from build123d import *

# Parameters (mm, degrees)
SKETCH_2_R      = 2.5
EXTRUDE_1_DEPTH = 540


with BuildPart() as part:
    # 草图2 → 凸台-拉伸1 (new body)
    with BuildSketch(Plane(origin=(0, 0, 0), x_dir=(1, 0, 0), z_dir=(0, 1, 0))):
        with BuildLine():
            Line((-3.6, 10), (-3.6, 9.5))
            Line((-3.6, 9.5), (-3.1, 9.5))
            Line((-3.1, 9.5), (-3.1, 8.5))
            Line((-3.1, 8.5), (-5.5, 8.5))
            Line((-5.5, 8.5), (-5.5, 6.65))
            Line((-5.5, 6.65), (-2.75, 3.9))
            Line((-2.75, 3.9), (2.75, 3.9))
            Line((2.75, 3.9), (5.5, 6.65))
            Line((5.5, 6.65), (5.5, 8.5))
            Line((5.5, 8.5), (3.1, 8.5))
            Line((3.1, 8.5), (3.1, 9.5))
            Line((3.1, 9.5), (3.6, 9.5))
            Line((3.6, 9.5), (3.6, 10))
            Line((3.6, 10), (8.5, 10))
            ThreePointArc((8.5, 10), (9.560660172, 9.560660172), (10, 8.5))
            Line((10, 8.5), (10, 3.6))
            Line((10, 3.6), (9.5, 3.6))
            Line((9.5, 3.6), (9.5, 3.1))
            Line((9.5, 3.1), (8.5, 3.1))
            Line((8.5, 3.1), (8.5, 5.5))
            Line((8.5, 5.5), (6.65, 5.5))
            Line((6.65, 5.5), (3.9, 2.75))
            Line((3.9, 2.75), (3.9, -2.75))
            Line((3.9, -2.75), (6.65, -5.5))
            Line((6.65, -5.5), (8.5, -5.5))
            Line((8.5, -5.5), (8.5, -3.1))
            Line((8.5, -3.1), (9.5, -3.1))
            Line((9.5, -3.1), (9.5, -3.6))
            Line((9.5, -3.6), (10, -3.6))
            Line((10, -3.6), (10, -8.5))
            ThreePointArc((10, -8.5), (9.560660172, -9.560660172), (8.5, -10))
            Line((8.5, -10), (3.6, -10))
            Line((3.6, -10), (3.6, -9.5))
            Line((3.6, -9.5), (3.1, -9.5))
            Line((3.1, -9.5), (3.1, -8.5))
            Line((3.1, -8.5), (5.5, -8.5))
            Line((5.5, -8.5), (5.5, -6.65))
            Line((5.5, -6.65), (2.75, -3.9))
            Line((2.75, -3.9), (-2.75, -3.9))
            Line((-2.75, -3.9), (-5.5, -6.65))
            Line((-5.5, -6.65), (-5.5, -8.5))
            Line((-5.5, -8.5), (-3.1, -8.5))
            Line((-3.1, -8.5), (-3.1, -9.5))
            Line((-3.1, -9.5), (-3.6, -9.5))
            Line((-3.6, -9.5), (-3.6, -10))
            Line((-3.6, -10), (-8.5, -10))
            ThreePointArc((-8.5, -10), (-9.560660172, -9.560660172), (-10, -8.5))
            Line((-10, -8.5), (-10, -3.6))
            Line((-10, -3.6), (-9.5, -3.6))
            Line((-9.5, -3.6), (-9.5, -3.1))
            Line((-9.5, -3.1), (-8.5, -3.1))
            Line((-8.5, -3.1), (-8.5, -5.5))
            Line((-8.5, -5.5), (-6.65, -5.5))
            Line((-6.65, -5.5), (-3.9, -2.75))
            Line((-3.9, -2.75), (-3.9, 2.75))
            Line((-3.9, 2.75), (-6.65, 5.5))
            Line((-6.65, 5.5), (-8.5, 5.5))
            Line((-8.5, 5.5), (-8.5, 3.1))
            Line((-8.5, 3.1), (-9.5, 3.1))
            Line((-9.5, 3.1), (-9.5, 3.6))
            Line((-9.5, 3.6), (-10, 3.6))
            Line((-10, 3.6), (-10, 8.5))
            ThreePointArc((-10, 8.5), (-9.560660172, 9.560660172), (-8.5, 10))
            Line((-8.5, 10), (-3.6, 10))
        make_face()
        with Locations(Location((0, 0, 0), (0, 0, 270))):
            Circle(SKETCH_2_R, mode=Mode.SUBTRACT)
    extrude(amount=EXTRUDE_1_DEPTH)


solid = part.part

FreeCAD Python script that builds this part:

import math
import FreeCAD as App
import Part
import Sketcher

doc = App.newDocument("Part")
body = doc.addObject("PartDesign::Body", "Body")

sketch1 = doc.addObject("Sketcher::SketchObject", "Sketch")
body.addObject(sketch1)
sketch1.AttachmentSupport = (doc.XZ_Plane, [""])
sketch1.MapMode = "FlatFace"
sketch1.addGeometry(Part.LineSegment(App.Vector(-3.6, -9.5, 0), App.Vector(-3.6, -10, 0)), False)
sketch1.addGeometry(Part.LineSegment(App.Vector(-3.6, -10, 0), App.Vector(-8.5, -10, 0)), False)
sketch1.addGeometry(Part.ArcOfCircle(Part.Circle(App.Vector(-8.5, -8.5, 0), App.Vector(0, 0, 1), 1.5), math.radians(180), math.radians(270)), False)
sketch1.addGeometry(Part.LineSegment(App.Vector(-10, -8.5, 0), App.Vector(-10, -3.6, 0)), False)
sketch1.addGeometry(Part.LineSegment(App.Vector(-10, -3.6, 0), App.Vector(-9.5, -3.6, 0)), False)
sketch1.addGeometry(Part.LineSegment(App.Vector(-9.5, -3.6, 0), App.Vector(-9.5, -3.1, 0)), False)
sketch1.addGeometry(Part.LineSegment(App.Vector(-9.5, -3.1, 0), App.Vector(-8.5, -3.1, 0)), False)
sketch1.addGeometry(Part.LineSegment(App.Vector(-8.5, -3.1, 0), App.Vector(-8.5, -5.5, 0)), False)
sketch1.addGeometry(Part.LineSegment(App.Vector(-8.5, -5.5, 0), App.Vector(-6.7, -5.5, 0)), False)
sketch1.addGeometry(Part.LineSegment(App.Vector(-6.7, -5.5, 0), App.Vector(-3.9, -2.8, 0)), False)
sketch1.addGeometry(Part.LineSegment(App.Vector(-3.9, -2.8, 0), App.Vector(-3.9, 2.8, 0)), False)
sketch1.addGeometry(Part.LineSegment(App.Vector(-3.9, 2.8, 0), App.Vector(-6.7, 5.5, 0)), False)
sketch1.addGeometry(Part.LineSegment(App.Vector(-6.7, 5.5, 0), App.Vector(-8.5, 5.5, 0)), False)
sketch1.addGeometry(Part.LineSegment(App.Vector(-8.5, 5.5, 0), App.Vector(-8.5, 3.1, 0)), False)
sketch1.addGeometry(Part.LineSegment(App.Vector(-8.5, 3.1, 0), App.Vector(-9.5, 3.1, 0)), False)
sketch1.addGeometry(Part.LineSegment(App.Vector(-9.5, 3.1, 0), App.Vector(-9.5, 3.6, 0)), False)
sketch1.addGeometry(Part.LineSegment(App.Vector(-9.5, 3.6, 0), App.Vector(-10, 3.6, 0)), False)
sketch1.addGeometry(Part.LineSegment(App.Vector(-10, 3.6, 0), App.Vector(-10, 8.5, 0)), False)
sketch1.addGeometry(Part.ArcOfCircle(Part.Circle(App.Vector(-8.5, 8.5, 0), App.Vector(0, 0, 1), 1.5), math.radians(90), math.radians(180)), False)
sketch1.addGeometry(Part.LineSegment(App.Vector(-8.5, 10, 0), App.Vector(-3.6, 10, 0)), False)
sketch1.addGeometry(Part.LineSegment(App.Vector(-3.6, 10, 0), App.Vector(-3.6, 9.5, 0)), False)
sketch1.addGeometry(Part.LineSegment(App.Vector(-3.6, 9.5, 0), App.Vector(-3.1, 9.5, 0)), False)
sketch1.addGeometry(Part.LineSegment(App.Vector(-3.1, 9.5, 0), App.Vector(-3.1, 8.5, 0)), False)
sketch1.addGeometry(Part.LineSegment(App.Vector(-3.1, 8.5, 0), App.Vector(-5.5, 8.5, 0)), False)
sketch1.addGeometry(Part.LineSegment(App.Vector(-5.5, 8.5, 0), App.Vector(-5.5, 6.7, 0)), False)
sketch1.addGeometry(Part.LineSegment(App.Vector(-5.5, 6.7, 0), App.Vector(-2.8, 3.9, 0)), False)
sketch1.addGeometry(Part.LineSegment(App.Vector(-2.8, 3.9, 0), App.Vector(2.8, 3.9, 0)), False)
sketch1.addGeometry(Part.LineSegment(App.Vector(2.8, 3.9, 0), App.Vector(5.5, 6.7, 0)), False)
sketch1.addGeometry(Part.LineSegment(App.Vector(5.5, 6.7, 0), App.Vector(5.5, 8.5, 0)), False)
sketch1.addGeometry(Part.LineSegment(App.Vector(5.5, 8.5, 0), App.Vector(3.1, 8.5, 0)), False)
sketch1.addGeometry(Part.LineSegment(App.Vector(3.1, 8.5, 0), App.Vector(3.1, 9.5, 0)), False)
sketch1.addGeometry(Part.LineSegment(App.Vector(3.1, 9.5, 0), App.Vector(3.6, 9.5, 0)), False)
sketch1.addGeometry(Part.LineSegment(App.Vector(3.6, 9.5, 0), App.Vector(3.6, 10, 0)), False)
sketch1.addGeometry(Part.LineSegment(App.Vector(3.6, 10, 0), App.Vector(8.5, 10, 0)), False)
sketch1.addGeometry(Part.ArcOfCircle(Part.Circle(App.Vector(8.5, 8.5, 0), App.Vector(0, 0, 1), 1.5), math.radians(0), math.radians(90)), False)
sketch1.addGeometry(Part.LineSegment(App.Vector(10, 8.5, 0), App.Vector(10, 3.6, 0)), False)
sketch1.addGeometry(Part.LineSegment(App.Vector(10, 3.6, 0), App.Vector(9.5, 3.6, 0)), False)
sketch1.addGeometry(Part.LineSegment(App.Vector(9.5, 3.6, 0), App.Vector(9.5, 3.1, 0)), False)
sketch1.addGeometry(Part.LineSegment(App.Vector(9.5, 3.1, 0), App.Vector(8.5, 3.1, 0)), False)
sketch1.addGeometry(Part.LineSegment(App.Vector(8.5, 3.1, 0), App.Vector(8.5, 5.5, 0)), False)
sketch1.addGeometry(Part.LineSegment(App.Vector(8.5, 5.5, 0), App.Vector(6.7, 5.5, 0)), False)
sketch1.addGeometry(Part.LineSegment(App.Vector(6.7, 5.5, 0), App.Vector(3.9, 2.8, 0)), False)
sketch1.addGeometry(Part.LineSegment(App.Vector(3.9, 2.8, 0), App.Vector(3.9, -2.8, 0)), False)
sketch1.addGeometry(Part.LineSegment(App.Vector(3.9, -2.8, 0), App.Vector(6.7, -5.5, 0)), False)
sketch1.addGeometry(Part.LineSegment(App.Vector(6.7, -5.5, 0), App.Vector(8.5, -5.5, 0)), False)
sketch1.addGeometry(Part.LineSegment(App.Vector(8.5, -5.5, 0), App.Vector(8.5, -3.1, 0)), False)
sketch1.addGeometry(Part.LineSegment(App.Vector(8.5, -3.1, 0), App.Vector(9.5, -3.1, 0)), False)
sketch1.addGeometry(Part.LineSegment(App.Vector(9.5, -3.1, 0), App.Vector(9.5, -3.6, 0)), False)
sketch1.addGeometry(Part.LineSegment(App.Vector(9.5, -3.6, 0), App.Vector(10, -3.6, 0)), False)
sketch1.addGeometry(Part.LineSegment(App.Vector(10, -3.6, 0), App.Vector(10, -8.5, 0)), False)
sketch1.addGeometry(Part.ArcOfCircle(Part.Circle(App.Vector(8.5, -8.5, 0), App.Vector(0, 0, 1), 1.5), math.radians(-90), math.radians(0)), False)
sketch1.addGeometry(Part.LineSegment(App.Vector(8.5, -10, 0), App.Vector(3.6, -10, 0)), False)
sketch1.addGeometry(Part.LineSegment(App.Vector(3.6, -10, 0), App.Vector(3.6, -9.5, 0)), False)
sketch1.addGeometry(Part.LineSegment(App.Vector(3.6, -9.5, 0), App.Vector(3.1, -9.5, 0)), False)
sketch1.addGeometry(Part.LineSegment(App.Vector(3.1, -9.5, 0), App.Vector(3.1, -8.5, 0)), False)
sketch1.addGeometry(Part.LineSegment(App.Vector(3.1, -8.5, 0), App.Vector(5.5, -8.5, 0)), False)
sketch1.addGeometry(Part.LineSegment(App.Vector(5.5, -8.5, 0), App.Vector(5.5, -6.7, 0)), False)
sketch1.addGeometry(Part.LineSegment(App.Vector(5.5, -6.7, 0), App.Vector(2.8, -3.9, 0)), False)
sketch1.addGeometry(Part.LineSegment(App.Vector(2.8, -3.9, 0), App.Vector(-2.8, -3.9, 0)), False)
sketch1.addGeometry(Part.LineSegment(App.Vector(-2.8, -3.9, 0), App.Vector(-5.5, -6.7, 0)), False)
sketch1.addGeometry(Part.LineSegment(App.Vector(-5.5, -6.7, 0), App.Vector(-5.5, -8.5, 0)), False)
sketch1.addGeometry(Part.LineSegment(App.Vector(-5.5, -8.5, 0), App.Vector(-3.1, -8.5, 0)), False)
sketch1.addGeometry(Part.LineSegment(App.Vector(-3.1, -8.5, 0), App.Vector(-3.1, -9.5, 0)), False)
sketch1.addGeometry(Part.LineSegment(App.Vector(-3.1, -9.5, 0), App.Vector(-3.6, -9.5, 0)), False)
sketch1.addGeometry(Part.Circle(App.Vector(0, 0, 0), App.Vector(0, 0, 1), 2.5), False)
sketch1.addConstraint(Sketcher.Constraint("Coincident", 0, 2, 1, 1))
sketch1.addConstraint(Sketcher.Constraint("Tangent", 1, 2, 2, 2))
sketch1.addConstraint(Sketcher.Constraint("Tangent", 2, 1, 3, 1))
sketch1.addConstraint(Sketcher.Constraint("Coincident", 3, 2, 4, 1))
sketch1.addConstraint(Sketcher.Constraint("Coincident", 4, 2, 5, 1))
sketch1.addConstraint(Sketcher.Constraint("Coincident", 5, 2, 6, 1))
sketch1.addConstraint(Sketcher.Constraint("Coincident", 6, 2, 7, 1))
sketch1.addConstraint(Sketcher.Constraint("Coincident", 7, 2, 8, 1))
sketch1.addConstraint(Sketcher.Constraint("Coincident", 8, 2, 9, 1))
sketch1.addConstraint(Sketcher.Constraint("Coincident", 9, 2, 10, 1))
sketch1.addConstraint(Sketcher.Constraint("Coincident", 10, 2, 11, 1))
sketch1.addConstraint(Sketcher.Constraint("Coincident", 11, 2, 12, 1))
sketch1.addConstraint(Sketcher.Constraint("Coincident", 12, 2, 13, 1))
sketch1.addConstraint(Sketcher.Constraint("Coincident", 13, 2, 14, 1))
sketch1.addConstraint(Sketcher.Constraint("Coincident", 14, 2, 15, 1))
sketch1.addConstraint(Sketcher.Constraint("Coincident", 15, 2, 16, 1))
sketch1.addConstraint(Sketcher.Constraint("Coincident", 16, 2, 17, 1))
sketch1.addConstraint(Sketcher.Constraint("Tangent", 17, 2, 18, 2))
sketch1.addConstraint(Sketcher.Constraint("Tangent", 18, 1, 19, 1))
sketch1.addConstraint(Sketcher.Constraint("Coincident", 19, 2, 20, 1))
sketch1.addConstraint(Sketcher.Constraint("Coincident", 20, 2, 21, 1))
sketch1.addConstraint(Sketcher.Constraint("Coincident", 21, 2, 22, 1))
sketch1.addConstraint(Sketcher.Constraint("Coincident", 22, 2, 23, 1))
sketch1.addConstraint(Sketcher.Constraint("Coincident", 23, 2, 24, 1))
sketch1.addConstraint(Sketcher.Constraint("Coincident", 24, 2, 25, 1))
sketch1.addConstraint(Sketcher.Constraint("Coincident", 25, 2, 26, 1))
sketch1.addConstraint(Sketcher.Constraint("Coincident", 26, 2, 27, 1))
sketch1.addConstraint(Sketcher.Constraint("Coincident", 27, 2, 28, 1))
sketch1.addConstraint(Sketcher.Constraint("Coincident", 28, 2, 29, 1))
sketch1.addConstraint(Sketcher.Constraint("Coincident", 29, 2, 30, 1))
sketch1.addConstraint(Sketcher.Constraint("Coincident", 30, 2, 31, 1))
sketch1.addConstraint(Sketcher.Constraint("Coincident", 31, 2, 32, 1))
sketch1.addConstraint(Sketcher.Constraint("Coincident", 32, 2, 33, 1))
sketch1.addConstraint(Sketcher.Constraint("Tangent", 33, 2, 34, 2))
sketch1.addConstraint(Sketcher.Constraint("Tangent", 34, 1, 35, 1))
sketch1.addConstraint(Sketcher.Constraint("Coincident", 35, 2, 36, 1))
sketch1.addConstraint(Sketcher.Constraint("Coincident", 36, 2, 37, 1))
sketch1.addConstraint(Sketcher.Constraint("Coincident", 37, 2, 38, 1))
sketch1.addConstraint(Sketcher.Constraint("Coincident", 38, 2, 39, 1))
sketch1.addConstraint(Sketcher.Constraint("Coincident", 39, 2, 40, 1))
sketch1.addConstraint(Sketcher.Constraint("Coincident", 40, 2, 41, 1))
sketch1.addConstraint(Sketcher.Constraint("Coincident", 41, 2, 42, 1))
sketch1.addConstraint(Sketcher.Constraint("Coincident", 42, 2, 43, 1))
sketch1.addConstraint(Sketcher.Constraint("Coincident", 43, 2, 44, 1))
sketch1.addConstraint(Sketcher.Constraint("Coincident", 44, 2, 45, 1))
sketch1.addConstraint(Sketcher.Constraint("Coincident", 45, 2, 46, 1))
sketch1.addConstraint(Sketcher.Constraint("Coincident", 46, 2, 47, 1))
sketch1.addConstraint(Sketcher.Constraint("Coincident", 47, 2, 48, 1))
sketch1.addConstraint(Sketcher.Constraint("Coincident", 48, 2, 49, 1))
sketch1.addConstraint(Sketcher.Constraint("Tangent", 49, 2, 50, 2))
sketch1.addConstraint(Sketcher.Constraint("Tangent", 50, 1, 51, 1))
sketch1.addConstraint(Sketcher.Constraint("Coincident", 51, 2, 52, 1))
sketch1.addConstraint(Sketcher.Constraint("Coincident", 52, 2, 53, 1))
sketch1.addConstraint(Sketcher.Constraint("Coincident", 53, 2, 54, 1))
sketch1.addConstraint(Sketcher.Constraint("Coincident", 54, 2, 55, 1))
sketch1.addConstraint(Sketcher.Constraint("Coincident", 55, 2, 56, 1))
sketch1.addConstraint(Sketcher.Constraint("Coincident", 56, 2, 57, 1))
sketch1.addConstraint(Sketcher.Constraint("Coincident", 57, 2, 58, 1))
sketch1.addConstraint(Sketcher.Constraint("Coincident", 58, 2, 59, 1))
sketch1.addConstraint(Sketcher.Constraint("Coincident", 59, 2, 60, 1))
sketch1.addConstraint(Sketcher.Constraint("Coincident", 60, 2, 61, 1))
sketch1.addConstraint(Sketcher.Constraint("Coincident", 61, 2, 62, 1))
sketch1.addConstraint(Sketcher.Constraint("Coincident", 62, 2, 63, 1))
sketch1.addConstraint(Sketcher.Constraint("Coincident", 63, 2, 0, 1))
sketch1.addConstraint(Sketcher.Constraint("Vertical", 0))
sketch1.addConstraint(Sketcher.Constraint("Horizontal", 1))
sketch1.addConstraint(Sketcher.Constraint("Vertical", 3))
sketch1.addConstraint(Sketcher.Constraint("Horizontal", 4))
sketch1.addConstraint(Sketcher.Constraint("Vertical", 5))
sketch1.addConstraint(Sketcher.Constraint("Horizontal", 6))
sketch1.addConstraint(Sketcher.Constraint("Vertical", 7))
sketch1.addConstraint(Sketcher.Constraint("Horizontal", 8))
sketch1.addConstraint(Sketcher.Constraint("Vertical", 10))
sketch1.addConstraint(Sketcher.Constraint("Horizontal", 12))
sketch1.addConstraint(Sketcher.Constraint("Vertical", 13))
sketch1.addConstraint(Sketcher.Constraint("Horizontal", 14))
sketch1.addConstraint(Sketcher.Constraint("Vertical", 15))
sketch1.addConstraint(Sketcher.Constraint("Horizontal", 16))
sketch1.addConstraint(Sketcher.Constraint("Vertical", 17))
sketch1.addConstraint(Sketcher.Constraint("Horizontal", 19))
sketch1.addConstraint(Sketcher.Constraint("Vertical", 20))
sketch1.addConstraint(Sketcher.Constraint("Horizontal", 21))
sketch1.addConstraint(Sketcher.Constraint("Vertical", 22))
sketch1.addConstraint(Sketcher.Constraint("Horizontal", 23))
sketch1.addConstraint(Sketcher.Constraint("Vertical", 24))
sketch1.addConstraint(Sketcher.Constraint("Horizontal", 26))
sketch1.addConstraint(Sketcher.Constraint("Vertical", 28))
sketch1.addConstraint(Sketcher.Constraint("Horizontal", 29))
sketch1.addConstraint(Sketcher.Constraint("Vertical", 30))
sketch1.addConstraint(Sketcher.Constraint("Horizontal", 31))
sketch1.addConstraint(Sketcher.Constraint("Vertical", 32))
sketch1.addConstraint(Sketcher.Constraint("Horizontal", 33))
sketch1.addConstraint(Sketcher.Constraint("Vertical", 35))
sketch1.addConstraint(Sketcher.Constraint("Horizontal", 36))
sketch1.addConstraint(Sketcher.Constraint("Vertical", 37))
sketch1.addConstraint(Sketcher.Constraint("Horizontal", 38))
sketch1.addConstraint(Sketcher.Constraint("Vertical", 39))
sketch1.addConstraint(Sketcher.Constraint("Horizontal", 40))
sketch1.addConstraint(Sketcher.Constraint("Vertical", 42))
sketch1.addConstraint(Sketcher.Constraint("Horizontal", 44))
sketch1.addConstraint(Sketcher.Constraint("Vertical", 45))
sketch1.addConstraint(Sketcher.Constraint("Horizontal", 46))
sketch1.addConstraint(Sketcher.Constraint("Vertical", 47))
sketch1.addConstraint(Sketcher.Constraint("Horizontal", 48))
sketch1.addConstraint(Sketcher.Constraint("Vertical", 49))
sketch1.addConstraint(Sketcher.Constraint("Horizontal", 51))
sketch1.addConstraint(Sketcher.Constraint("Vertical", 52))
sketch1.addConstraint(Sketcher.Constraint("Horizontal", 53))
sketch1.addConstraint(Sketcher.Constraint("Vertical", 54))
sketch1.addConstraint(Sketcher.Constraint("Horizontal", 55))
sketch1.addConstraint(Sketcher.Constraint("Vertical", 56))
sketch1.addConstraint(Sketcher.Constraint("Horizontal", 58))
sketch1.addConstraint(Sketcher.Constraint("Vertical", 60))
sketch1.addConstraint(Sketcher.Constraint("Horizontal", 61))
sketch1.addConstraint(Sketcher.Constraint("Vertical", 62))
sketch1.addConstraint(Sketcher.Constraint("Horizontal", 63))
sketch1.addConstraint(Sketcher.Constraint("Coincident", 64, 3, -1, 1))
sketch1.addConstraint(Sketcher.Constraint("Equal", 2, 18))
sketch1.addConstraint(Sketcher.Constraint("Equal", 18, 34))
sketch1.addConstraint(Sketcher.Constraint("Equal", 34, 50))
sketch1.addConstraint(Sketcher.Constraint("Symmetric", 2, 3, 34, 3, -1, 1))
sketch1.addConstraint(Sketcher.Constraint("Symmetric", 18, 3, 50, 3, -1, 1))
sketch1.addConstraint(Sketcher.Constraint("Symmetric", 4, 2, 36, 2, -1, 1))
sketch1.addConstraint(Sketcher.Constraint("Symmetric", 6, 2, 38, 2, -1, 1))
sketch1.addConstraint(Sketcher.Constraint("Symmetric", 8, 2, 40, 2, -1, 1))
sketch1.addConstraint(Sketcher.Constraint("Symmetric", 9, 2, 41, 2, -1, 1))
sketch1.addConstraint(Sketcher.Constraint("Symmetric", 11, 2, 43, 2, -1, 1))
sketch1.addConstraint(Sketcher.Constraint("Symmetric", 13, 2, 45, 2, -1, 1))
sketch1.addConstraint(Sketcher.Constraint("Symmetric", 15, 2, 47, 2, -1, 1))
sketch1.addConstraint(Sketcher.Constraint("Symmetric", 20, 2, 52, 2, -1, 1))
sketch1.addConstraint(Sketcher.Constraint("Symmetric", 22, 2, 54, 2, -1, 1))
sketch1.addConstraint(Sketcher.Constraint("Symmetric", 24, 2, 56, 2, -1, 1))
sketch1.addConstraint(Sketcher.Constraint("Symmetric", 25, 2, 57, 2, -1, 1))
sketch1.addConstraint(Sketcher.Constraint("Symmetric", 27, 2, 59, 2, -1, 1))
sketch1.addConstraint(Sketcher.Constraint("Symmetric", 29, 2, 61, 2, -1, 1))
sketch1.addConstraint(Sketcher.Constraint("Symmetric", 31, 2, 63, 2, -1, 1))
sketch1.addConstraint(Sketcher.Constraint("Symmetric", 18, 3, 34, 3, -2))
sketch1.addConstraint(Sketcher.Constraint("Symmetric", 24, 2, 27, 2, -2))
sketch1.addConstraint(Sketcher.Constraint("Symmetric", 22, 2, 29, 2, -2))
sketch1.addConstraint(Sketcher.Constraint("Symmetric", 20, 2, 31, 2, -2))
sketch1.addConstraint(Sketcher.Constraint("Symmetric", 15, 2, 36, 2, -2))
sketch1.addConstraint(Sketcher.Constraint("Symmetric", 13, 2, 38, 2, -2))
sketch1.addConstraint(Sketcher.Constraint("Symmetric", 11, 2, 40, 2, -2))
sketch1.addConstraint(Sketcher.Constraint("Perpendicular", 9, 11))
sketch1.addConstraint(Sketcher.Constraint("Parallel", 11, 25))
sketch1.addConstraint(Sketcher.Constraint("Perpendicular", 25, 27))
sketch1.addConstraint(Sketcher.Constraint("Perpendicular", 41, 43))
sketch1.addConstraint(Sketcher.Constraint("Perpendicular", 57, 59))
sketch1.addConstraint(Sketcher.Constraint("Horizontal", 17, 2, 22, 2))
sketch1.addConstraint(Sketcher.Constraint("Horizontal", 10, 2, 41, 2))
sketch1.addConstraint(Sketcher.Constraint("Vertical", 1, 2, 6, 2))
sketch1.addConstraint(Sketcher.Constraint("Equal", 16, 21))
sketch1.addConstraint(Sketcher.Constraint("Equal", 63, 0))
sketch1.addConstraint(Sketcher.Constraint("Equal", 51, 3))
sketch1.addConstraint(Sketcher.Constraint("Equal", 0, 5))
sketch1.addConstraint(Sketcher.Constraint("Equal", 61, 7))
sketch1.addConstraint(Sketcher.Constraint("Equal", 58, 10))
sketch1.addConstraint(Sketcher.Constraint("Equal", 44, 24))
sketch1.addConstraint(Sketcher.Constraint("Equal", 11, 25))
sketch1.addConstraint(Sketcher.Constraint("Diameter", 64, 5.0))
sketch1.addConstraint(Sketcher.Constraint("Radius", 2, 1.5))
sketch1.addConstraint(Sketcher.Constraint("DistanceX", 6, 1, 6, 2, 1.0))
sketch1.addConstraint(Sketcher.Constraint("DistanceX", 1, 2, 1, 1, 4.9))
sketch1.addConstraint(Sketcher.Constraint("DistanceX", 23, 2, 23, 1, 2.4))
sketch1.addConstraint(Sketcher.Constraint("DistanceX", 26, 1, 26, 2, 5.5))
sketch1.addConstraint(Sketcher.Constraint("DistanceY", 0, 2, -1, 1, 10.0))
sketch1.addConstraint(Sketcher.Constraint("DistanceX", 8, 1, 8, 2, 1.85))
pad1 = doc.addObject("PartDesign::Pad", "Pad")
body.addObject(pad1)
pad1.Profile = sketch1
pad1.Length = 540
pad1.Reversed = True

doc.recompute()
